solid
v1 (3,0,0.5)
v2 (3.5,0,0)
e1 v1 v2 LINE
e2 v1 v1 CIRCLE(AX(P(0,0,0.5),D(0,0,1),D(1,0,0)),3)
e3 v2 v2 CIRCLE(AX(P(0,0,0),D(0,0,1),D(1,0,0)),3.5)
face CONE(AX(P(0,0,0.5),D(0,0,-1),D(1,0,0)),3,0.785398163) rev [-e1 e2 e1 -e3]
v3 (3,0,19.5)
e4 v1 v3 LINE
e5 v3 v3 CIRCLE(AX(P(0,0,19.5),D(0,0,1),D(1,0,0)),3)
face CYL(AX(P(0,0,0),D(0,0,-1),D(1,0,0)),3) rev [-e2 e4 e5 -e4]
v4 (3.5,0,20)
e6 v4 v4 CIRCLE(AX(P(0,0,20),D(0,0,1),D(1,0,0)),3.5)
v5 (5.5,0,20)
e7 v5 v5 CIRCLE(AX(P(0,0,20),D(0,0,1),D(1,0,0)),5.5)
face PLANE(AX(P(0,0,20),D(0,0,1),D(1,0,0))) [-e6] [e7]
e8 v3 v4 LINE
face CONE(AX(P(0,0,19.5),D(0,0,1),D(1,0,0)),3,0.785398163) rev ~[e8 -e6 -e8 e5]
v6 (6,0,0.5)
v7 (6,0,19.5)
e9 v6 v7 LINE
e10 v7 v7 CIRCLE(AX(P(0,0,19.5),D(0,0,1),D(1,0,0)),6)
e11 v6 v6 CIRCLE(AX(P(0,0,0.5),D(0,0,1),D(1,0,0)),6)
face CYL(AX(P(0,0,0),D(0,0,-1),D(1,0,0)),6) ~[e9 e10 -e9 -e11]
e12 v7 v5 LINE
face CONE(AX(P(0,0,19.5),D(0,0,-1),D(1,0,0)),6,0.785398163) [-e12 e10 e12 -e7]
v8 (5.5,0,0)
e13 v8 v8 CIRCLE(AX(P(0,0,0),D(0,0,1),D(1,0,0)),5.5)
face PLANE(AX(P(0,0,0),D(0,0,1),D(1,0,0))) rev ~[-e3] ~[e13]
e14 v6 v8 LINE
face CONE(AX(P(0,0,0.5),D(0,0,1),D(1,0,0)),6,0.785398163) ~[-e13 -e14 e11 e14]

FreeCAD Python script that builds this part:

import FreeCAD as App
import Part
import Sketcher
from FreeCAD import Vector


def edges_at(feature, points):
    """Names of the edges that pass closest to the given points."""
    edges = feature.Shape.Edges
    near = lambda p: min(range(len(edges)), key=lambda i: edges[i].distToShape(Part.Vertex(*p))[0])
    return sorted({f"Edge{near(p) + 1}" for p in points})

doc = App.newDocument("Part")
params = doc.addObject("Spreadsheet::Sheet", "Params")
for row, (alias, value) in enumerate([
    ("sketch1_diameter", "12 mm"),
    ("sketch1_diameter2", "6 mm"),
    ("pad1_length", "20 mm"),
    ("chamfer_size", "0.5 mm"),
], start=1):
    params.set(f"A{row}", alias)
    params.set(f"B{row}", "=" + value)
    params.setAlias(f"B{row}", alias)

body = doc.addObject("PartDesign::Body", "Body")

# Sketch on XY plane
sketch1 = doc.addObject("Sketcher::SketchObject", "Sketch")
body.addObject(sketch1)
sketch1.AttachmentSupport = (doc.XY_Plane, [""])
sketch1.MapMode = "FlatFace"
sketch1.addGeometry(Part.Circle(Vector(0, 0, 0), Vector(0, 0, 1), 6), False)
sketch1.addGeometry(Part.Circle(Vector(0, 0, 0), Vector(0, 0, 1), 3), False)
sketch1.addConstraint(Sketcher.Constraint("Coincident", 0, 3, -1, 1))
sketch1.addConstraint(Sketcher.Constraint("Coincident", 1, 3, -1, 1))
sketch1.addConstraint(Sketcher.Constraint("Diameter", 0, 12.0))
sketch1.addConstraint(Sketcher.Constraint("Diameter", 1, 6.0))
sketch1.setExpression("Constraints[2]", "Params.sketch1_diameter")
sketch1.setExpression("Constraints[3]", "Params.sketch1_diameter2")
pad1 = doc.addObject("PartDesign::Pad", "Pad")
body.addObject(pad1)
pad1.Profile = sketch1
pad1.setExpression("Length", "Params.pad1_length")
doc.recompute()

chamfer = doc.addObject("PartDesign::Chamfer", "Chamfer")
body.addObject(chamfer)
chamfer.Base = (pad1, edges_at(pad1, [
    (-3, 0, 20),
    (-6, 0, 20),
    (-6, 0, 0),
    (-3, 0, 0),
]))
chamfer.setExpression("Size", "Params.chamfer_size")

doc.recompute()
